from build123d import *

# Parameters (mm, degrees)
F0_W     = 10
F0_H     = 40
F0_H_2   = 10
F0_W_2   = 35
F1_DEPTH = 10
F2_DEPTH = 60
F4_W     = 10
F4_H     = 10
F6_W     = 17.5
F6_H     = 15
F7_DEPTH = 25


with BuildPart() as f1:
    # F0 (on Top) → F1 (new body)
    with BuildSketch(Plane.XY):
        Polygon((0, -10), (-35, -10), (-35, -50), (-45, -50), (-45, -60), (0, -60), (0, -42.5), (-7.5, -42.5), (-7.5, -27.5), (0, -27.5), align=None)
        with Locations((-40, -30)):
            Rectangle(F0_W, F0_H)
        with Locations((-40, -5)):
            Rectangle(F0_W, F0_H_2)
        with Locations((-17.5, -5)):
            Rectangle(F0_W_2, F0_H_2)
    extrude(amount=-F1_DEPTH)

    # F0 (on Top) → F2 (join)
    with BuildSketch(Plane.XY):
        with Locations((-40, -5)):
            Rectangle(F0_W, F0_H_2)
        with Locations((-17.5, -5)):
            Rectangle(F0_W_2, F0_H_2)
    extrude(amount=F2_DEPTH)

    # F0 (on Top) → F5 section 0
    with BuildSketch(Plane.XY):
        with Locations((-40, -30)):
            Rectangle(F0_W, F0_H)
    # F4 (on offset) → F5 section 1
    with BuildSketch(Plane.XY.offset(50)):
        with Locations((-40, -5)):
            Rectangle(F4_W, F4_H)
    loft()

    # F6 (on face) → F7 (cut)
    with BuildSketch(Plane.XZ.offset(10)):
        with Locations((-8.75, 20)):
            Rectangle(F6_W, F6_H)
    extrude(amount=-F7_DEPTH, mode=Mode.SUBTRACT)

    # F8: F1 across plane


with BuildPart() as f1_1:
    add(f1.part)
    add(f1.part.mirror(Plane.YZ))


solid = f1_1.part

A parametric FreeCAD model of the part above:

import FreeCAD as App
import Part
import Sketcher

V = App.Vector


def add_polygon(sketch, points):
    """Adds a closed chain of lines whose ends are joined by coincident constraints."""
    first, n = sketch.GeometryCount, len(points)
    for a, b in zip(points, points[1:] + points[:1]):
        sketch.addGeometry(Part.LineSegment(App.Vector(*a, 0), App.Vector(*b, 0)), False)
    for i in range(n):
        sketch.addConstraint(Sketcher.Constraint("Coincident", first + i, 2, first + (i + 1) % n, 1))

doc = App.newDocument("Part")
body = doc.addObject("PartDesign::Body", "Body")

# Sketch on XY plane
sketch1 = body.newObject("Sketcher::SketchObject", "Sketch")
sketch1.AttachmentSupport = (doc.getObject("XY_Plane"), [""])
sketch1.MapMode = "FlatFace"
add_polygon(sketch1, [(-45, 0), (-45, -60), (0, -60), (0, -42), (-8, -42), (-8, -28), (0, -28), (0, 0)])  # lines 0-7
sketch1.addConstraint(Sketcher.Constraint("Vertical", 0))
sketch1.addConstraint(Sketcher.Constraint("Horizontal", 1))
sketch1.addConstraint(Sketcher.Constraint("Vertical", 2))
sketch1.addConstraint(Sketcher.Constraint("Horizontal", 3))
sketch1.addConstraint(Sketcher.Constraint("Vertical", 4))
sketch1.addConstraint(Sketcher.Constraint("Horizontal", 5))
sketch1.addConstraint(Sketcher.Constraint("Vertical", 6))
sketch1.addConstraint(Sketcher.Constraint("Horizontal", 7))
sketch1.addConstraint(Sketcher.Constraint("Coincident", 6, 2, -1, 1))
sketch1.addConstraint(Sketcher.Constraint("PointOnObject", 1, 2, -2))
sketch1.addConstraint(Sketcher.Constraint("DistanceX", 1, 1, 1, 2, 45.0))
sketch1.addConstraint(Sketcher.Constraint("DistanceY", 0, 2, 0, 1, 60.0))
sketch1.addConstraint(Sketcher.Constraint("DistanceY", 4, 1, 4, 2, 15.0))
sketch1.addConstraint(Sketcher.Constraint("DistanceX", 3, 2, 3, 1, 7.5))
sketch1.addConstraint(Sketcher.Constraint("DistanceY", 2, 1, 2, 2, 17.5))
pad1 = body.newObject("PartDesign::Pad", "Pad")
pad1.Profile = sketch1
pad1.Length = 10
pad1.Reversed = True

# Sketch on XY plane
sketch2 = body.newObject("Sketcher::SketchObject", "Sketch001")
sketch2.AttachmentSupport = (doc.getObject("XY_Plane"), [""])
sketch2.MapMode = "FlatFace"
add_polygon(sketch2, [(-45, 0), (-45, -10), (0, -10), (0, 0)])  # lines 0-3
sketch2.addConstraint(Sketcher.Constraint("Vertical", 0))
sketch2.addConstraint(Sketcher.Constraint("Horizontal", 1))
sketch2.addConstraint(Sketcher.Constraint("Vertical", 2))
sketch2.addConstraint(Sketcher.Constraint("Horizontal", 3))
sketch2.addConstraint(Sketcher.Constraint("Coincident", 2, 2, -1, 1))
sketch2.addConstraint(Sketcher.Constraint("DistanceX", 1, 1, 1, 2, 45.0))
sketch2.addConstraint(Sketcher.Constraint("DistanceY", 0, 2, 0, 1, 10.0))
pad2 = body.newObject("PartDesign::Pad", "Pad001")
pad2.Profile = sketch2
pad2.Length = 60

# Sketch on XY plane
sketch3 = body.newObject("Sketcher::SketchObject", "Sketch002")
sketch3.AttachmentSupport = (doc.getObject("XY_Plane"), [""])
sketch3.MapMode = "FlatFace"
add_polygon(sketch3, [(-45, -10), (-45, -50), (-35, -50), (-35, -10)])  # lines 0-3
sketch3.addConstraint(Sketcher.Constraint("Vertical", 0))
sketch3.addConstraint(Sketcher.Constraint("Horizontal", 1))
sketch3.addConstraint(Sketcher.Constraint("Vertical", 2))
sketch3.addConstraint(Sketcher.Constraint("Horizontal", 3))
sketch3.addConstraint(Sketcher.Constraint("DistanceX", 1, 1, 1, 2, 10.0))
sketch3.addConstraint(Sketcher.Constraint("DistanceY", 0, 2, 0, 1, 40.0))
sketch3.addConstraint(Sketcher.Constraint("DistanceX", 0, 2, -1, 1, 45.0))
sketch3.addConstraint(Sketcher.Constraint("DistanceY", 0, 2, -1, 1, 50.0))

# Sketch on XY plane
sketch4 = body.newObject("Sketcher::SketchObject", "Sketch003")
sketch4.AttachmentSupport = (doc.getObject("XY_Plane"), [""])
sketch4.MapMode = "FlatFace"
sketch4.AttachmentOffset = App.Placement(V(0, 0, 50), App.Rotation())
add_polygon(sketch4, [(-45, 0), (-45, -10), (-35, -10), (-35, 0)])  # lines 0-3
sketch4.addConstraint(Sketcher.Constraint("Vertical", 0))
sketch4.addConstraint(Sketcher.Constraint("Horizontal", 1))
sketch4.addConstraint(Sketcher.Constraint("Vertical", 2))
sketch4.addConstraint(Sketcher.Constraint("Horizontal", 3))
sketch4.addConstraint(Sketcher.Constraint("PointOnObject", 2, 2, -1))
sketch4.addConstraint(Sketcher.Constraint("Equal", 3, 0))
sketch4.addConstraint(Sketcher.Constraint("DistanceX", 1, 1, 1, 2, 10.0))
sketch4.addConstraint(Sketcher.Constraint("DistanceX", 0, 2, -1, 1, 45.0))

additiveloft = body.newObject("PartDesign::AdditiveLoft", "AdditiveLoft")
additiveloft.Profile = sketch3
additiveloft.Sections = [sketch4]

# Sketch on XZ plane
sketch5 = body.newObject("Sketcher::SketchObject", "Sketch004")
sketch5.AttachmentSupport = (doc.getObject("XZ_Plane"), [""])
sketch5.MapMode = "FlatFace"
sketch5.AttachmentOffset = App.Placement(V(0, 0, 10), App.Rotation())
add_polygon(sketch5, [(-18, 28), (-18, 12), (0, 12), (0, 28)])  # lines 0-3
sketch5.addConstraint(Sketcher.Constraint("Vertical", 0))
sketch5.addConstraint(Sketcher.Constraint("Horizontal", 1))
sketch5.addConstraint(Sketcher.Constraint("Vertical", 2))
sketch5.addConstraint(Sketcher.Constraint("Horizontal", 3))
sketch5.addConstraint(Sketcher.Constraint("PointOnObject", 1, 2, -2))
sketch5.addConstraint(Sketcher.Constraint("DistanceY", 0, 2, 0, 1, 15.0))
sketch5.addConstraint(Sketcher.Constraint("DistanceX", 1, 1, 1, 2, 17.5))
sketch5.addConstraint(Sketcher.Constraint("DistanceY", -1, 1, 0, 2, 12.5))
pocket1 = body.newObject("PartDesign::Pocket", "Pocket")
pocket1.Profile = sketch5
pocket1.Length = 25
body2 = doc.addObject("PartDesign::Body", "Body001")
doc.recompute()

body2.BaseFeature = body
doc.recompute()

mirroring = doc.addObject("Part::Mirroring", "Mirroring")
mirroring.Source = body
mirroring.Base = V(0, 0, 0)
mirroring.Normal = V(1, 0, 0)
body3 = doc.addObject("PartDesign::Body", "Body002")
body3.BaseFeature = mirroring
boolean = body2.newObject("PartDesign::Boolean", "Boolean")
boolean.Type = "Fuse"
boolean.addObjects([body3])
doc.recompute()
mirroring.Visibility = False

doc.recompute()
